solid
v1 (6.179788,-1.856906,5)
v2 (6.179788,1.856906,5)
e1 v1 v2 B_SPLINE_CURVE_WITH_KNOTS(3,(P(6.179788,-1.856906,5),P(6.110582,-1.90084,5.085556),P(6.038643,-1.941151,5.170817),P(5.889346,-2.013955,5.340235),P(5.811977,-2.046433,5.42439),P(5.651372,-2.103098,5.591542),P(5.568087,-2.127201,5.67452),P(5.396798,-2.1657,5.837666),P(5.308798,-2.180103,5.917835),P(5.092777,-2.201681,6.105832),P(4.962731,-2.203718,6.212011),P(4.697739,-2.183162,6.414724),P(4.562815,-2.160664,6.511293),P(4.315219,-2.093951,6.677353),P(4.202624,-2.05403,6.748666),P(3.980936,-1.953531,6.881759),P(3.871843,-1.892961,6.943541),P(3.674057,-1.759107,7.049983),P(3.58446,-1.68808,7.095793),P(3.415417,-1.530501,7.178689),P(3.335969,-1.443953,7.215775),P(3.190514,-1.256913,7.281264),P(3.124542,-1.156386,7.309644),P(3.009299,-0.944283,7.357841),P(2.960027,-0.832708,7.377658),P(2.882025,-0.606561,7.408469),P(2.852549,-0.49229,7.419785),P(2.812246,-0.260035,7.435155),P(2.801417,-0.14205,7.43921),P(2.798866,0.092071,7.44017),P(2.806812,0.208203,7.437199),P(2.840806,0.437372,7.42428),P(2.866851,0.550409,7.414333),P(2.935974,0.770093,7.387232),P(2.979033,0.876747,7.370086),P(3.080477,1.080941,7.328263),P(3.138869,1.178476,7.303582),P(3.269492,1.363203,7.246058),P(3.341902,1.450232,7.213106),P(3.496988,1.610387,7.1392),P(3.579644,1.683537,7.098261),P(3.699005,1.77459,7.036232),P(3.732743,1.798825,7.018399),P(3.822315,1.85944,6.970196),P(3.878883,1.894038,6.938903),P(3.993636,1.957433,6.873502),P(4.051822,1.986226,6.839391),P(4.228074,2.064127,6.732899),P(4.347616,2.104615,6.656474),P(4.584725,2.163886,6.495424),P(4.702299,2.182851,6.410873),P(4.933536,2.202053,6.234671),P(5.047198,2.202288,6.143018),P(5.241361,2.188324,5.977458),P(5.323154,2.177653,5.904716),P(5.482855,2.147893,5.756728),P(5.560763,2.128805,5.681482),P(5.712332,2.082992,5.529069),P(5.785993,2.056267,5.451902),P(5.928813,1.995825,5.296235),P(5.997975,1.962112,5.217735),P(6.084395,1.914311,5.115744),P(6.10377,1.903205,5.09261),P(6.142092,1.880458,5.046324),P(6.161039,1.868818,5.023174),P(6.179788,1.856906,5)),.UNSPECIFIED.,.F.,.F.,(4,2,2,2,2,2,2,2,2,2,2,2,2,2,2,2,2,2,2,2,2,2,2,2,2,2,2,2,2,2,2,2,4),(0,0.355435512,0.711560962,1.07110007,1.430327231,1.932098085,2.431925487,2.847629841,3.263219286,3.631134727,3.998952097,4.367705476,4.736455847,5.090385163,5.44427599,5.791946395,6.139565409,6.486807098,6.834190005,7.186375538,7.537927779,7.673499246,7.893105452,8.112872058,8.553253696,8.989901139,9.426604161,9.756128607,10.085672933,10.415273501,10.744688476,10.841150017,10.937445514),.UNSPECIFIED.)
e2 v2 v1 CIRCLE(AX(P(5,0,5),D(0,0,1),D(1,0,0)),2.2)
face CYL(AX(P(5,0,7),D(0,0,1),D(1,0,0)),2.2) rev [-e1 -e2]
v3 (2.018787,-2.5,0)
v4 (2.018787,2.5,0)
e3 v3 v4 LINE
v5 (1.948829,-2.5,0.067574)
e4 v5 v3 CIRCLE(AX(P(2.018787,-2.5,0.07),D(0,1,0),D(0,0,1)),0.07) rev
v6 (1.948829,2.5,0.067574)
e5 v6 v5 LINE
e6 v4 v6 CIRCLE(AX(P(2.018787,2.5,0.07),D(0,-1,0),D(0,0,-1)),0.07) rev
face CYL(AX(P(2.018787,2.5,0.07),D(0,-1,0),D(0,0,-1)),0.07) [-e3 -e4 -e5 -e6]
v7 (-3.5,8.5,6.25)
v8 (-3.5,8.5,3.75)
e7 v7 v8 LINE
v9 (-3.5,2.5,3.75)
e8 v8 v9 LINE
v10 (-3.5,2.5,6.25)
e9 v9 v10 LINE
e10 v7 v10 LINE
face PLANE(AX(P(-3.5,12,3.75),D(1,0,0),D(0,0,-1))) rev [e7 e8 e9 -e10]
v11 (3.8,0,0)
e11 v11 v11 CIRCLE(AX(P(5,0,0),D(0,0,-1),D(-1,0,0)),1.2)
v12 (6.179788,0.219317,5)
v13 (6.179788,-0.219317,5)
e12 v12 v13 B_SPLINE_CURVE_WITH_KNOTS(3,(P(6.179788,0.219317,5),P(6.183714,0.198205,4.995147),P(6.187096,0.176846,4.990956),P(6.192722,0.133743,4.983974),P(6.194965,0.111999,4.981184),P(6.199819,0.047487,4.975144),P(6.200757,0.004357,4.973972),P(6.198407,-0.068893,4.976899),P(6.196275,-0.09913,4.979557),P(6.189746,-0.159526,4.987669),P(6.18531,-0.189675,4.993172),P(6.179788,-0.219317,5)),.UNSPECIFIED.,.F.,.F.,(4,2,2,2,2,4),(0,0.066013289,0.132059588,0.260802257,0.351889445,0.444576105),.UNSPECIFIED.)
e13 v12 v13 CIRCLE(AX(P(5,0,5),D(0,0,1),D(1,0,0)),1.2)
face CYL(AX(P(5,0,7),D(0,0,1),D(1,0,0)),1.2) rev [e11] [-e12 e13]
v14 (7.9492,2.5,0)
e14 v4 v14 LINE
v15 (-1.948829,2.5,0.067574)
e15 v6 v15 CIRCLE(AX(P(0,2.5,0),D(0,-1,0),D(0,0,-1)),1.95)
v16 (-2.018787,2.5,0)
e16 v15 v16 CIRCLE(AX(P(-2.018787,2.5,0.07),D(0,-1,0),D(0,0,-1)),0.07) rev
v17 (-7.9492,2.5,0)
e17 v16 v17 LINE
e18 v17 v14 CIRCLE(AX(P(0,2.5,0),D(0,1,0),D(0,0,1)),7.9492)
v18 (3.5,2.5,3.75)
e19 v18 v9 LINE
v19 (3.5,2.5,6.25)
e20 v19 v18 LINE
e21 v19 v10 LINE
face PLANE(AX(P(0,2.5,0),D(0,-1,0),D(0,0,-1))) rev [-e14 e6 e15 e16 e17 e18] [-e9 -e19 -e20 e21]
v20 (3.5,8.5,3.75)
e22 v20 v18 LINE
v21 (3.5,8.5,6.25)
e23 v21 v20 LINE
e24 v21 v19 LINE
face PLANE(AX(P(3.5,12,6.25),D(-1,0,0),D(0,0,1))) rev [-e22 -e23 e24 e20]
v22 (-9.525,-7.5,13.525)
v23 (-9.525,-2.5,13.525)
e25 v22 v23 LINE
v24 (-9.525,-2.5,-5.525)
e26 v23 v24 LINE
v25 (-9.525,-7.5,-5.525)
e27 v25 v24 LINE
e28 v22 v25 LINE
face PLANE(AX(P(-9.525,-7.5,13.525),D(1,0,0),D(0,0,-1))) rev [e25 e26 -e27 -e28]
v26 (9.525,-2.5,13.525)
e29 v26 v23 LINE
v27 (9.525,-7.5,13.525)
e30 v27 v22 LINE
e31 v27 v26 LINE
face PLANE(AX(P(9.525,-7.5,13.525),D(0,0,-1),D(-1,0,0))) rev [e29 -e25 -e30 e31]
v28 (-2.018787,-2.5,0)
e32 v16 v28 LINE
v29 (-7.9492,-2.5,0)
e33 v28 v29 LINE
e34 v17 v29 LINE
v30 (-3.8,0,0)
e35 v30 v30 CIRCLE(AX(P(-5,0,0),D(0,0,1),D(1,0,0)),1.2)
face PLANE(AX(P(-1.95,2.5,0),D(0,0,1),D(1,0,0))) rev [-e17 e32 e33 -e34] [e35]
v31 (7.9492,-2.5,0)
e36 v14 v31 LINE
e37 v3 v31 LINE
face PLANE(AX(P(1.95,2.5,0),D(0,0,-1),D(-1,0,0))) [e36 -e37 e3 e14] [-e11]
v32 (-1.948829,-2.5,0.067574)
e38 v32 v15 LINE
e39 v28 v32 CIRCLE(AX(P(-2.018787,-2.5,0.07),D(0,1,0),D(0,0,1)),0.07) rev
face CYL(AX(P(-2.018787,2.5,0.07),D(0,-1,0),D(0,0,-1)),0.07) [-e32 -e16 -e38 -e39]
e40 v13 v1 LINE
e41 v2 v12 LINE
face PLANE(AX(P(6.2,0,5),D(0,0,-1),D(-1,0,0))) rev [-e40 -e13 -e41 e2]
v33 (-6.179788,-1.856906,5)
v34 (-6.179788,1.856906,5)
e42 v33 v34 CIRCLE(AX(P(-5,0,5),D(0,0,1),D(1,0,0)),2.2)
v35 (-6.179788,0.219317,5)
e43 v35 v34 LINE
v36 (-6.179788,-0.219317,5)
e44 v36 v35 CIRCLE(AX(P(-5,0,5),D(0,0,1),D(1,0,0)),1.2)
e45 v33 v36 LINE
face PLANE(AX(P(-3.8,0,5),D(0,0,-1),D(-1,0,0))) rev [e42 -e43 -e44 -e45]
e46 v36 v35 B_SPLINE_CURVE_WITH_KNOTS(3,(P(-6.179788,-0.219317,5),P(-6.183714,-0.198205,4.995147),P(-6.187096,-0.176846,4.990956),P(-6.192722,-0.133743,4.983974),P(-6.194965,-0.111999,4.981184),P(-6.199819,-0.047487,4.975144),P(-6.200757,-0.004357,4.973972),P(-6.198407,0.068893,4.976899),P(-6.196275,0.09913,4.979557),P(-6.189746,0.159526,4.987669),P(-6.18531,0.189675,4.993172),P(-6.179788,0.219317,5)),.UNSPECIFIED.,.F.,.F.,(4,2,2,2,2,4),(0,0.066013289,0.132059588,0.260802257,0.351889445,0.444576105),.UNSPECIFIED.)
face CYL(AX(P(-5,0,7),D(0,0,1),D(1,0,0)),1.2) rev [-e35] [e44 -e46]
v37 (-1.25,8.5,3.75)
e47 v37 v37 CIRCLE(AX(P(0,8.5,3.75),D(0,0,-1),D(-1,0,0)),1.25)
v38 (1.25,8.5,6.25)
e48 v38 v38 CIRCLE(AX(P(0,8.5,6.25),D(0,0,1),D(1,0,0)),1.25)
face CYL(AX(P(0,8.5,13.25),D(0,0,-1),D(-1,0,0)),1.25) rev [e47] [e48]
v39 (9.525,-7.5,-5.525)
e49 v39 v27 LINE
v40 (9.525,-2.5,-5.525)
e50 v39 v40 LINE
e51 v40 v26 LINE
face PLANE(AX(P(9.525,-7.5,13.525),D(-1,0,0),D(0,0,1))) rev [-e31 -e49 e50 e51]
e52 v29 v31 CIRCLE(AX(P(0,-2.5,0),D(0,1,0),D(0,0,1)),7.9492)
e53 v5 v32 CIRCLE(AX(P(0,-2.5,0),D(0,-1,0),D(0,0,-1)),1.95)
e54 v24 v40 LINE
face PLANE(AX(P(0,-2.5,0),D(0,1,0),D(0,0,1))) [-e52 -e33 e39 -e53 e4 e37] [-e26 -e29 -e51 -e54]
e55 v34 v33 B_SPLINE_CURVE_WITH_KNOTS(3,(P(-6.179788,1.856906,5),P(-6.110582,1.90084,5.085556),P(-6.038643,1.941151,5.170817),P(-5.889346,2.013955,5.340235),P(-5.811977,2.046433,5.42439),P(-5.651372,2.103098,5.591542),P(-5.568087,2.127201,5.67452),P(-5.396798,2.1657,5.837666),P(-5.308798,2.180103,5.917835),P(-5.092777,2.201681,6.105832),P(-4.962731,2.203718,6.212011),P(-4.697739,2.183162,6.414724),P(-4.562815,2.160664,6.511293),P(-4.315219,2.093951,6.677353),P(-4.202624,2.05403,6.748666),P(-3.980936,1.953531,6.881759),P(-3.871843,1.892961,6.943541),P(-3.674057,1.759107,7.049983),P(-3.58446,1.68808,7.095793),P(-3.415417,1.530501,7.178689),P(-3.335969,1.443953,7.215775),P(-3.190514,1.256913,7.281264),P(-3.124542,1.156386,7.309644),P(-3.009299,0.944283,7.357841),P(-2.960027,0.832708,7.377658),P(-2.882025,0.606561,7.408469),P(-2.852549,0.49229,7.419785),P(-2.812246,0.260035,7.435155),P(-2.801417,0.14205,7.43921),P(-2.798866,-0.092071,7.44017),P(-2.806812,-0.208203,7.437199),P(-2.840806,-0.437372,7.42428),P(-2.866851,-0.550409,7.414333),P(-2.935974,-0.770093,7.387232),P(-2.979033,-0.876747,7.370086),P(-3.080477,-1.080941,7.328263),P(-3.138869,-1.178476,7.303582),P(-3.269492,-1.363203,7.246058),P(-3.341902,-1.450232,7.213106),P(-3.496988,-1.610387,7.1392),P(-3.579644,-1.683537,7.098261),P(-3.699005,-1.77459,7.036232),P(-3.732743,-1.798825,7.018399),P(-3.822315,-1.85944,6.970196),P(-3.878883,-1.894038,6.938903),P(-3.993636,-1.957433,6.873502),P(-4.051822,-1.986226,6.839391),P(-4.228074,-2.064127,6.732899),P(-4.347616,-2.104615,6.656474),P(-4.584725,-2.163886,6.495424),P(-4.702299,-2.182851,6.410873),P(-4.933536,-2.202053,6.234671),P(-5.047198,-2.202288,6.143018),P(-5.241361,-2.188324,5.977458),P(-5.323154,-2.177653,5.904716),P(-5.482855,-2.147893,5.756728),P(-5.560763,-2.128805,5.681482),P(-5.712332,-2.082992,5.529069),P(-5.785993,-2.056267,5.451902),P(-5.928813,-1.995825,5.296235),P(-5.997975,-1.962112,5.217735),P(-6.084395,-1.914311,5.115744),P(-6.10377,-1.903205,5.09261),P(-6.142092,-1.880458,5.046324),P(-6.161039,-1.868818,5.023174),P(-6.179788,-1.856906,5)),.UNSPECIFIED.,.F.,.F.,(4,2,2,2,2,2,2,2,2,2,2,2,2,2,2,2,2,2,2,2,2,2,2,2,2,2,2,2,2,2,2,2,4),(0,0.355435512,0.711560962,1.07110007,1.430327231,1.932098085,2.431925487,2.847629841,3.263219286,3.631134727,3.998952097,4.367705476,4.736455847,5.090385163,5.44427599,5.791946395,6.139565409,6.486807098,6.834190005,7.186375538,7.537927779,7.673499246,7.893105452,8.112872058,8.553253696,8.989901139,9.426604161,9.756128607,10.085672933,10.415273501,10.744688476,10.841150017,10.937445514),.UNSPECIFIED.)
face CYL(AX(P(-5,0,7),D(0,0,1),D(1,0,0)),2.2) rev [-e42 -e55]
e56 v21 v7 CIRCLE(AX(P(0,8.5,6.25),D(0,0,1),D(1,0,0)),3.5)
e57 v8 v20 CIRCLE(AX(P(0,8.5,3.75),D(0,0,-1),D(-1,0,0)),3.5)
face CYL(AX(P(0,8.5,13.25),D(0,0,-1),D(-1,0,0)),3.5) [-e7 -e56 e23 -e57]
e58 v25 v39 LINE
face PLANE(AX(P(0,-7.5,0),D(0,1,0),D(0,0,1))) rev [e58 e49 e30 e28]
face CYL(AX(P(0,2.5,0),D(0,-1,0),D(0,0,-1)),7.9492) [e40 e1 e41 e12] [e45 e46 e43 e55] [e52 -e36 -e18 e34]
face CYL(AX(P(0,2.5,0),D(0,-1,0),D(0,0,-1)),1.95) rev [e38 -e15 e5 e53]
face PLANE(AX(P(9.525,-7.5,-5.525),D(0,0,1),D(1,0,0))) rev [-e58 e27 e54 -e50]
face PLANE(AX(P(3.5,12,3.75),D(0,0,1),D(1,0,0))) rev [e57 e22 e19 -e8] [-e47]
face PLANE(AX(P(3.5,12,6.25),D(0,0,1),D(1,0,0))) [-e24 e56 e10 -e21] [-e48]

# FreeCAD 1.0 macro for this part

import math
import FreeCAD as App
import Part
import Sketcher

V = App.Vector
Q = App.Units.Quantity


def edges_at(feature, points):
    """Names of the edges that pass closest to the given points."""
    edges = feature.Shape.Edges
    near = lambda p: min(range(len(edges)), key=lambda i: edges[i].distToShape(Part.Vertex(*p))[0])
    return sorted({f"Edge{near(p) + 1}" for p in points})

doc = App.newDocument("Part")
body = doc.addObject("PartDesign::Body", "Body")

# Sketch on XZ plane
sketch1 = body.newObject("Sketcher::SketchObject", "Sketch")
sketch1.AttachmentSupport = (doc.getObject("XZ_Plane"), [""])
sketch1.MapMode = "FlatFace"
sketch1.addGeometry(Part.LineSegment(V(7.9, 0, 0), V(1.9, 0, 0)), False)
sketch1.addGeometry(Part.ArcOfCircle(Part.Circle(V(0, 0, 0), V(0, 0, 1), 1.9), math.radians(0), math.radians(180)), False)
sketch1.addGeometry(Part.LineSegment(V(-1.9, 0, 0), V(-7.9, 0, 0)), False)
sketch1.addGeometry(Part.ArcOfCircle(Part.Circle(V(0, 0, 0), V(0, 0, 1), 7.9), math.radians(0), math.radians(180)), False)
sketch1.addConstraint(Sketcher.Constraint("Coincident", 0, 2, 1, 1))
sketch1.addConstraint(Sketcher.Constraint("Coincident", 1, 2, 2, 1))
sketch1.addConstraint(Sketcher.Constraint("Coincident", 2, 2, 3, 2))
sketch1.addConstraint(Sketcher.Constraint("Coincident", 3, 1, 0, 1))
sketch1.addConstraint(Sketcher.Constraint("Horizontal", 0))
sketch1.addConstraint(Sketcher.Constraint("Horizontal", 2))
sketch1.addConstraint(Sketcher.Constraint("Coincident", 1, 3, -1, 1))
sketch1.addConstraint(Sketcher.Constraint("Coincident", 3, 3, -1, 1))
sketch1.addConstraint(Sketcher.Constraint("PointOnObject", 0, 2, -1))
sketch1.addConstraint(Sketcher.Constraint("PointOnObject", 1, 2, -1))
sketch1.addConstraint(Sketcher.Constraint("Radius", 1, Q("1.95 mm")))
sketch1.addConstraint(Sketcher.Constraint("Radius", 3, Q("7.9492 mm")))
pad1 = body.newObject("PartDesign::Pad", "Pad")
pad1.Profile = sketch1
pad1.Length = 5
pad1.Midplane = True

# Sketch on XZ plane
sketch2 = body.newObject("Sketcher::SketchObject", "Sketch001")
sketch2.AttachmentSupport = (doc.getObject("XZ_Plane"), [""])
sketch2.MapMode = "FlatFace"
sketch2.AttachmentOffset = App.Placement(V(0, 0, -2.5), App.Rotation())
sketch2.addGeometry(Part.LineSegment(V(-3.5, 3.8, 0), V(-3.5, 6.2, 0)), False)
sketch2.addGeometry(Part.LineSegment(V(-3.5, 6.2, 0), V(3.5, 6.2, 0)), False)
sketch2.addGeometry(Part.LineSegment(V(3.5, 6.2, 0), V(3.5, 3.8, 0)), False)
sketch2.addGeometry(Part.LineSegment(V(3.5, 3.8, 0), V(-3.5, 3.8, 0)), False)
sketch2.addConstraint(Sketcher.Constraint("Coincident", 0, 2, 1, 1))
sketch2.addConstraint(Sketcher.Constraint("Coincident", 1, 2, 2, 1))
sketch2.addConstraint(Sketcher.Constraint("Coincident", 2, 2, 3, 1))
sketch2.addConstraint(Sketcher.Constraint("Coincident", 3, 2, 0, 1))
sketch2.addConstraint(Sketcher.Constraint("Vertical", 0))
sketch2.addConstraint(Sketcher.Constraint("Horizontal", 1))
sketch2.addConstraint(Sketcher.Constraint("Vertical", 2))
sketch2.addConstraint(Sketcher.Constraint("Horizontal", 3))
sketch2.addConstraint(Sketcher.Constraint("DistanceX", 1, 1, 1, 2, Q("7 mm")))
sketch2.addConstraint(Sketcher.Constraint("DistanceY", 0, 1, 0, 2, Q("2.5 mm")))
sketch2.addConstraint(Sketcher.Constraint("DistanceX", 0, 2, -1, 1, Q("3.5 mm")))
sketch2.addConstraint(Sketcher.Constraint("DistanceY", -1, 1, 0, 2, Q("6.25 mm")))
pad2 = body.newObject("PartDesign::Pad", "Pad001")
pad2.Profile = sketch2
pad2.Length = 9.5
pad2.Reversed = True

# Sketch on XY plane
sketch3 = body.newObject("Sketcher::SketchObject", "Sketch002")
sketch3.AttachmentSupport = (doc.getObject("XY_Plane"), [""])
sketch3.MapMode = "FlatFace"
sketch3.AttachmentOffset = App.Placement(V(0, 0, 3.75), App.Rotation())
sketch3.addGeometry(Part.LineSegment(V(3.5, 14.9, 0), V(3.5, 8.5, 0)), False)
sketch3.addGeometry(Part.ArcOfCircle(Part.Circle(V(0, 8.5, 0), V(0, 0, 1), 3.5), math.radians(0), math.radians(180)), False)
sketch3.addGeometry(Part.LineSegment(V(-3.5, 8.5, 0), V(-3.5, 14.5, 0)), False)
sketch3.addGeometry(Part.LineSegment(V(-3.5, 14.5, 0), V(0, 16.8, 0)), False)
sketch3.addGeometry(Part.LineSegment(V(0, 16.8, 0), V(3.5, 14.9, 0)), False)
sketch3.addConstraint(Sketcher.Constraint("Tangent", 0, 2, 1, 1))
sketch3.addConstraint(Sketcher.Constraint("Tangent", 1, 2, 2, 1))
sketch3.addConstraint(Sketcher.Constraint("Coincident", 2, 2, 3, 1))
sketch3.addConstraint(Sketcher.Constraint("Coincident", 3, 2, 4, 1))
sketch3.addConstraint(Sketcher.Constraint("Coincident", 4, 2, 0, 1))
sketch3.addConstraint(Sketcher.Constraint("Vertical", 0))
sketch3.addConstraint(Sketcher.Constraint("Vertical", 2))
sketch3.addConstraint(Sketcher.Constraint("PointOnObject", 1, 3, -2))
sketch3.addConstraint(Sketcher.Constraint("PointOnObject", 3, 2, -2))
sketch3.addConstraint(Sketcher.Constraint("Radius", 1, Q("3.5 mm")))
sketch3.addConstraint(Sketcher.Constraint("DistanceY", 2, 1, 2, 2, Q("6 mm")))
sketch3.addConstraint(Sketcher.Constraint("DistanceY", -1, 1, 1, 3, Q("8.5 mm")))
sketch3.addConstraint(Sketcher.Constraint("DistanceY", 0, 2, 0, 1, Q("6.38636 mm")))
sketch3.addConstraint(Sketcher.Constraint("DistanceY", -1, 1, 3, 2, Q("16.809202 mm")))
pocket1 = body.newObject("PartDesign::Pocket", "Pocket")
pocket1.Profile = sketch3
pocket1.Length = 9.5
pocket1.Reversed = True

# Sketch on XY plane
sketch4 = body.newObject("Sketcher::SketchObject", "Sketch003")
sketch4.AttachmentSupport = (doc.getObject("XY_Plane"), [""])
sketch4.MapMode = "FlatFace"
sketch4.AttachmentOffset = App.Placement(V(0, 0, 3.75), App.Rotation())
sketch4.addGeometry(Part.Circle(V(0, 8.5, 0), V(0, 0, 1), 1.2), False)
sketch4.addConstraint(Sketcher.Constraint("PointOnObject", 0, 3, -2))
sketch4.addConstraint(Sketcher.Constraint("Diameter", 0, Q("2.5 mm")))
sketch4.addConstraint(Sketcher.Constraint("DistanceY", -1, 1, 0, 3, Q("8.5 mm")))
pocket2 = body.newObject("PartDesign::Pocket", "Pocket001")
pocket2.Profile = sketch4
pocket2.Length = 9.5
pocket2.Reversed = True

# Sketch on YZ plane
sketch5 = body.newObject("Sketcher::SketchObject", "Sketch004")
sketch5.AttachmentSupport = (doc.getObject("YZ_Plane"), [""])
sketch5.MapMode = "FlatFace"
sketch5.AttachmentOffset = App.Placement(V(0, 0, 5), App.Rotation())
sketch5.addGeometry(Part.LineSegment(V(0, 0, 0), V(0, 7, 0)), False)
sketch5.addGeometry(Part.LineSegment(V(0, 7, 0), V(-2.2, 7, 0)), False)
sketch5.addGeometry(Part.LineSegment(V(-2.2, 7, 0), V(-2.2, 5, 0)), False)
sketch5.addGeometry(Part.LineSegment(V(-2.2, 5, 0), V(-1.2, 5, 0)), False)
sketch5.addGeometry(Part.LineSegment(V(-1.2, 5, 0), V(-1.2, 0, 0)), False)
sketch5.addGeometry(Part.LineSegment(V(-1.2, 0, 0), V(0, 0, 0)), False)
sketch5.addConstraint(Sketcher.Constraint("Coincident", 0, 2, 1, 1))
sketch5.addConstraint(Sketcher.Constraint("Coincident", 1, 2, 2, 1))
sketch5.addConstraint(Sketcher.Constraint("Coincident", 2, 2, 3, 1))
sketch5.addConstraint(Sketcher.Constraint("Coincident", 3, 2, 4, 1))
sketch5.addConstraint(Sketcher.Constraint("Coincident", 4, 2, 5, 1))
sketch5.addConstraint(Sketcher.Constraint("Coincident", 5, 2, 0, 1))
sketch5.addConstraint(Sketcher.Constraint("Vertical", 0))
sketch5.addConstraint(Sketcher.Constraint("Horizontal", 1))
sketch5.addConstraint(Sketcher.Constraint("Vertical", 2))
sketch5.addConstraint(Sketcher.Constraint("Horizontal", 3))
sketch5.addConstraint(Sketcher.Constraint("Vertical", 4))
sketch5.addConstraint(Sketcher.Constraint("Horizontal", 5))
sketch5.addConstraint(Sketcher.Constraint("Coincident", 5, 2, -1, 1))
sketch5.addConstraint(Sketcher.Constraint("DistanceX", 3, 1, 3, 2, Q("1 mm")))
sketch5.addConstraint(Sketcher.Constraint("DistanceY", 0, 1, 0, 2, Q("7 mm")))
sketch5.addConstraint(Sketcher.Constraint("DistanceY", 2, 2, 2, 1, Q("2 mm")))
sketch5.addConstraint(Sketcher.Constraint("DistanceX", 1, 2, 1, 1, Q("2.2 mm")))
groove = body.newObject("PartDesign::Groove", "Groove")
groove.Profile = sketch5
groove.ReferenceAxis = (sketch5, ["V_Axis"])
groove.Angle = 360
doc.recompute()

linearpattern = body.newObject("PartDesign::LinearPattern", "LinearPattern")
linearpattern.Originals = [groove]
linearpattern.Direction = (doc.getObject("X_Axis"), [""])
linearpattern.Mode = "offset"
linearpattern.Offset = 10
linearpattern.Occurrences = 2
linearpattern.Reversed = True
body.Tip = linearpattern

# Sketch on XY plane
sketch6 = body.newObject("Sketcher::SketchObject", "Sketch005")
sketch6.AttachmentSupport = (doc.getObject("XY_Plane"), [""])
sketch6.MapMode = "FlatFace"
sketch6.AttachmentOffset = App.Placement(V(0, 0, 7), App.Rotation())
sketch6.addGeometry(Part.Circle(V(5, 0, 0), V(0, 0, 1), 2.2), False)
sketch6.addGeometry(Part.Circle(V(-5, 0, 0), V(0, 0, 1), 2.2), False)
sketch6.addConstraint(Sketcher.Constraint("Equal", 0, 1))
sketch6.addConstraint(Sketcher.Constraint("Symmetric", 0, 3, 1, 3, -1, 1))
sketch6.addConstraint(Sketcher.Constraint("PointOnObject", 0, 3, -1))
sketch6.addConstraint(Sketcher.Constraint("Diameter", 0, Q("4.4 mm")))
sketch6.addConstraint(Sketcher.Constraint("DistanceX", -1, 1, 0, 3, Q("5 mm")))
pocket3 = body.newObject("PartDesign::Pocket", "Pocket002")
pocket3.Profile = sketch6
pocket3.Length = 9.5
pocket3.Reversed = True

# Sketch on XZ plane
sketch7 = body.newObject("Sketcher::SketchObject", "Sketch006")
sketch7.AttachmentSupport = (doc.getObject("XZ_Plane"), [""])
sketch7.MapMode = "FlatFace"
sketch7.AttachmentOffset = App.Placement(V(0, 0, 2.5), App.Rotation())
sketch7.addGeometry(Part.LineSegment(V(-10, 14, 0), V(-10, -6, 0)), False)
sketch7.addGeometry(Part.LineSegment(V(-10, -6, 0), V(10, -6, 0)), False)
sketch7.addGeometry(Part.LineSegment(V(10, -6, 0), V(10, 14, 0)), False)
sketch7.addGeometry(Part.LineSegment(V(10, 14, 0), V(-10, 14, 0)), False)
sketch7.addConstraint(Sketcher.Constraint("Coincident", 0, 2, 1, 1))
sketch7.addConstraint(Sketcher.Constraint("Coincident", 1, 2, 2, 1))
sketch7.addConstraint(Sketcher.Constraint("Coincident", 2, 2, 3, 1))
sketch7.addConstraint(Sketcher.Constraint("Coincident", 3, 2, 0, 1))
sketch7.addConstraint(Sketcher.Constraint("Vertical", 0))
sketch7.addConstraint(Sketcher.Constraint("Horizontal", 1))
sketch7.addConstraint(Sketcher.Constraint("Vertical", 2))
sketch7.addConstraint(Sketcher.Constraint("Horizontal", 3))
sketch7.addConstraint(Sketcher.Constraint("Equal", 3, 0))
sketch7.addConstraint(Sketcher.Constraint("DistanceX", 1, 1, 1, 2, Q("19.05 mm")))
sketch7.addConstraint(Sketcher.Constraint("DistanceX", 0, 2, -1, 1, Q("9.525 mm")))
sketch7.addConstraint(Sketcher.Constraint("DistanceY", 0, 2, -1, 1, Q("5.525 mm")))
pad3 = body.newObject("PartDesign::Pad", "Pad002")
pad3.Profile = sketch7
pad3.Length = 5
doc.recompute()

fillet = body.newObject("PartDesign::Fillet", "Fillet")
fillet.Base = (pad3, edges_at(pad3, [(1.95, 0, 0), (-1.95, 0, 0)]))
fillet.Radius = 0.07

doc.recompute()
